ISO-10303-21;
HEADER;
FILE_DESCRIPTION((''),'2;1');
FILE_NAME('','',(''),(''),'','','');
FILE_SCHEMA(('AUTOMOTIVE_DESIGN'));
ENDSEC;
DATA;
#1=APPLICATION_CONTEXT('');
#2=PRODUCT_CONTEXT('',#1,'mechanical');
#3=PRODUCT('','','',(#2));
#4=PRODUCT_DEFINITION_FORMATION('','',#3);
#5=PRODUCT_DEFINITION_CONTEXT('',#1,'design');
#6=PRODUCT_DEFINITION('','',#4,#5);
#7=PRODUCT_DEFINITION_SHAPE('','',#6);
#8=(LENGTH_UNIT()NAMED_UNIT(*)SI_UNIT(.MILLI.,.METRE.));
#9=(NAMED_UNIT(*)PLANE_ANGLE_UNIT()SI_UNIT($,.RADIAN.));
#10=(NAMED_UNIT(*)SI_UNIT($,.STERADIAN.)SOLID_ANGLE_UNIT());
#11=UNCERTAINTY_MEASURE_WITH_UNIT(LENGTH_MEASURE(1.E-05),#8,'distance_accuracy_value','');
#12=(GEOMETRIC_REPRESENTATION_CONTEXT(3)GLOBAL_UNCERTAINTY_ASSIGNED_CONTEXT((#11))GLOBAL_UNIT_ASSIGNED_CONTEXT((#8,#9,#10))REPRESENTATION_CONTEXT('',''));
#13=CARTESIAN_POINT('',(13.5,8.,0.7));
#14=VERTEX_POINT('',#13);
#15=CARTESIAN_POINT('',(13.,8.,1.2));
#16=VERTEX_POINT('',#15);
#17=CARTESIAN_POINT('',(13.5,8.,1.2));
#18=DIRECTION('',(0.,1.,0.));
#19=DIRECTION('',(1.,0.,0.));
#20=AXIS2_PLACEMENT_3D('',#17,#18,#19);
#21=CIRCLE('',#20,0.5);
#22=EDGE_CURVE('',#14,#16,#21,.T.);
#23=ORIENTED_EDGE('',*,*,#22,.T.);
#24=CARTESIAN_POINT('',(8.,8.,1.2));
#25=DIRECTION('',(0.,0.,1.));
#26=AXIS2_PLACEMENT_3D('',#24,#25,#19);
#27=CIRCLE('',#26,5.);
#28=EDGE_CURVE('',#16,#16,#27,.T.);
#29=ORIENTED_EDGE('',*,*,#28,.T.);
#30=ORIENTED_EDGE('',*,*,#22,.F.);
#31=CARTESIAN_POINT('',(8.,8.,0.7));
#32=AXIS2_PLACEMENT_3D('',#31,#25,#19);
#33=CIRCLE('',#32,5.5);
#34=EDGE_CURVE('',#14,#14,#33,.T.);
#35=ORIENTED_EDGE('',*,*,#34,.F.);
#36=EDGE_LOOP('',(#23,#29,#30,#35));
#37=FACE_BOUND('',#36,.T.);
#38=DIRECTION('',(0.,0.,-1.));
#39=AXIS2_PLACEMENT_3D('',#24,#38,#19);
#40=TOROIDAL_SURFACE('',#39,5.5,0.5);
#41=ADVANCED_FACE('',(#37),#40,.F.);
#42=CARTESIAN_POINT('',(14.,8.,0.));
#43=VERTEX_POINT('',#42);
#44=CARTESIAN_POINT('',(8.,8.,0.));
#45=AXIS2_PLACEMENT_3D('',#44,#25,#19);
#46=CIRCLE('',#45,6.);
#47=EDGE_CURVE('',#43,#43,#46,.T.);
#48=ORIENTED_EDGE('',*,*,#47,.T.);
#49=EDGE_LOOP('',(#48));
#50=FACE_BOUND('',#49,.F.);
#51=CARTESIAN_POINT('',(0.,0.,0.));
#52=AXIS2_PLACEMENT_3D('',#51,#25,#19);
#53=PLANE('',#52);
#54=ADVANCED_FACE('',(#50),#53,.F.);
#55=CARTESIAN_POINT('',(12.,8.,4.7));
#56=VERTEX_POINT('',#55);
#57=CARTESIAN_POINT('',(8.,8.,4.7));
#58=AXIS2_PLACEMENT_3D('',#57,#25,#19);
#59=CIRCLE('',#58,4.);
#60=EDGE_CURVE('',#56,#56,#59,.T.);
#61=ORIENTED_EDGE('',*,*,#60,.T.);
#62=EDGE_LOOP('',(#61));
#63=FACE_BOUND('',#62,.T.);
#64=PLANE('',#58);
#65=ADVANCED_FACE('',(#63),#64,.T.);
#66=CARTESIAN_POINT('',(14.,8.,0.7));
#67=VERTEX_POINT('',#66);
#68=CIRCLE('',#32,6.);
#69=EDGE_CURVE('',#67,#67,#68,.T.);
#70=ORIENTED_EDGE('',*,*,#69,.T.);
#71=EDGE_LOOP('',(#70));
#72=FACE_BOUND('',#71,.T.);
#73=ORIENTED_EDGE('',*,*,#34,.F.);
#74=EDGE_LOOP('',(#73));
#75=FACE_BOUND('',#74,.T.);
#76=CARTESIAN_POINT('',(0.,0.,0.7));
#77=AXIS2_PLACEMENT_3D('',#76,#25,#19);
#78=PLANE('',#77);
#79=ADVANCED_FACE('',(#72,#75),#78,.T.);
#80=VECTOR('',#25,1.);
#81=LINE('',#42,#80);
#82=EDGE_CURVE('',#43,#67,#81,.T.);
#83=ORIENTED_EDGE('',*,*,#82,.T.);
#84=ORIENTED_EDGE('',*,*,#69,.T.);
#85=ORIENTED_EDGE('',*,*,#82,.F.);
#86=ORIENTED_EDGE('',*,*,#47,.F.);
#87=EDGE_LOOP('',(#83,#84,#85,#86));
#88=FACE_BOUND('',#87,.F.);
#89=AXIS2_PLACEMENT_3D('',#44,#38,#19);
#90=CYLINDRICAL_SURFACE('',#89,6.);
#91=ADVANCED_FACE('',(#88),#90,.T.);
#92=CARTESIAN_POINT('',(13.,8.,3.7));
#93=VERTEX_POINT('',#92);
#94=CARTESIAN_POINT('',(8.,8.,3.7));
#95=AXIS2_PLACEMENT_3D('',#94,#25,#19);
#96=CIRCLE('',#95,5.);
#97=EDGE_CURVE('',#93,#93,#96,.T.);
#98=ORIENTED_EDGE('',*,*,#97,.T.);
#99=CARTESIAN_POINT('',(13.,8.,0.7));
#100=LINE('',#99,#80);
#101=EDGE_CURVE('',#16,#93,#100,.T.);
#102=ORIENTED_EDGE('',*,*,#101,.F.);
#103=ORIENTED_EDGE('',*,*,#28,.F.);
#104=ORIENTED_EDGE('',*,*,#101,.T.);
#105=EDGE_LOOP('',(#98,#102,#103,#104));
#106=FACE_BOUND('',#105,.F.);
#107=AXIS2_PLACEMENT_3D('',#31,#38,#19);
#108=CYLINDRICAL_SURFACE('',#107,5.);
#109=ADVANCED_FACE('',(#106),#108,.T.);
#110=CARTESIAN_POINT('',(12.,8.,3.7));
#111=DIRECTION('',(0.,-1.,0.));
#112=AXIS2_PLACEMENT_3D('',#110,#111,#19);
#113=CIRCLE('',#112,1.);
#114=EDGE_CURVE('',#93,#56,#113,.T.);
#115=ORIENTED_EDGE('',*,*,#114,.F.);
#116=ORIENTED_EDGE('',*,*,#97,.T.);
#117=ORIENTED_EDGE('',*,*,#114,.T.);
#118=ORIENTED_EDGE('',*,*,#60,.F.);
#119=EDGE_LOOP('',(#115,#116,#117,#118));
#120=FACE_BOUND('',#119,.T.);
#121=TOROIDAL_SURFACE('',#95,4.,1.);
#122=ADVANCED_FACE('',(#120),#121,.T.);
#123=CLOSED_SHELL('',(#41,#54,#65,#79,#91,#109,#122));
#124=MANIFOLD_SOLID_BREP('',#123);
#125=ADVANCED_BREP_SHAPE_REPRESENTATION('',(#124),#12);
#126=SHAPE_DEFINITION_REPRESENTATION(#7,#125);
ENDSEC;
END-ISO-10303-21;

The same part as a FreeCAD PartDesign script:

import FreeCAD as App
import Part
import Sketcher

V = App.Vector
Q = App.Units.Quantity


def edges_at(feature, points):
    """Names of the edges that pass closest to the given points."""
    edges = feature.Shape.Edges
    near = lambda p: min(range(len(edges)), key=lambda i: edges[i].distToShape(Part.Vertex(*p))[0])
    return sorted({f"Edge{near(p) + 1}" for p in points})

doc = App.newDocument("Part")
body = doc.addObject("PartDesign::Body", "Body")

sketch1 = body.newObject("Sketcher::SketchObject", "Sketch")
sketch1.AttachmentSupport = (doc.getObject("XY_Plane"), [""])
sketch1.MapMode = "FlatFace"
sketch1.addGeometry(Part.Circle(V(8, 8, 0), V(0, 0, 1), 6), False)
sketch1.addConstraint([
    Sketcher.Constraint("Diameter", 0, Q("12 mm")),
    Sketcher.Constraint("DistanceX", -1, 1, 0, 3, Q("8 mm")),
    Sketcher.Constraint("DistanceY", -1, 1, 0, 3, Q("8 mm")),
])
pad1 = body.newObject("PartDesign::Pad", "Pad")
pad1.Profile = sketch1
pad1.Length = 0.7

sketch2 = body.newObject("Sketcher::SketchObject", "Sketch001")
sketch2.AttachmentSupport = (doc.getObject("XY_Plane"), [""])
sketch2.MapMode = "FlatFace"
sketch2.AttachmentOffset = App.Placement(V(0, 0, 0.7), App.Rotation())
sketch2.addGeometry(Part.Circle(V(8, 8, 0), V(0, 0, 1), 5), False)
sketch2.addConstraint([
    Sketcher.Constraint("Diameter", 0, Q("10 mm")),
    Sketcher.Constraint("DistanceX", -1, 1, 0, 3, Q("8 mm")),
    Sketcher.Constraint("DistanceY", -1, 1, 0, 3, Q("8 mm")),
])
pad2 = body.newObject("PartDesign::Pad", "Pad001")
pad2.Profile = sketch2
pad2.Length = 4
doc.recompute()

fillet = body.newObject("PartDesign::Fillet", "Fillet")
fillet.Base = (pad2, edges_at(pad2, [(3, 8, 4.7)]))
fillet.Radius = 1
doc.recompute()

fillet2 = body.newObject("PartDesign::Fillet", "Fillet001")
fillet2.Base = (fillet, edges_at(fillet, [(3, 8, 0.7)]))
fillet2.Radius = 0.5

doc.recompute()
